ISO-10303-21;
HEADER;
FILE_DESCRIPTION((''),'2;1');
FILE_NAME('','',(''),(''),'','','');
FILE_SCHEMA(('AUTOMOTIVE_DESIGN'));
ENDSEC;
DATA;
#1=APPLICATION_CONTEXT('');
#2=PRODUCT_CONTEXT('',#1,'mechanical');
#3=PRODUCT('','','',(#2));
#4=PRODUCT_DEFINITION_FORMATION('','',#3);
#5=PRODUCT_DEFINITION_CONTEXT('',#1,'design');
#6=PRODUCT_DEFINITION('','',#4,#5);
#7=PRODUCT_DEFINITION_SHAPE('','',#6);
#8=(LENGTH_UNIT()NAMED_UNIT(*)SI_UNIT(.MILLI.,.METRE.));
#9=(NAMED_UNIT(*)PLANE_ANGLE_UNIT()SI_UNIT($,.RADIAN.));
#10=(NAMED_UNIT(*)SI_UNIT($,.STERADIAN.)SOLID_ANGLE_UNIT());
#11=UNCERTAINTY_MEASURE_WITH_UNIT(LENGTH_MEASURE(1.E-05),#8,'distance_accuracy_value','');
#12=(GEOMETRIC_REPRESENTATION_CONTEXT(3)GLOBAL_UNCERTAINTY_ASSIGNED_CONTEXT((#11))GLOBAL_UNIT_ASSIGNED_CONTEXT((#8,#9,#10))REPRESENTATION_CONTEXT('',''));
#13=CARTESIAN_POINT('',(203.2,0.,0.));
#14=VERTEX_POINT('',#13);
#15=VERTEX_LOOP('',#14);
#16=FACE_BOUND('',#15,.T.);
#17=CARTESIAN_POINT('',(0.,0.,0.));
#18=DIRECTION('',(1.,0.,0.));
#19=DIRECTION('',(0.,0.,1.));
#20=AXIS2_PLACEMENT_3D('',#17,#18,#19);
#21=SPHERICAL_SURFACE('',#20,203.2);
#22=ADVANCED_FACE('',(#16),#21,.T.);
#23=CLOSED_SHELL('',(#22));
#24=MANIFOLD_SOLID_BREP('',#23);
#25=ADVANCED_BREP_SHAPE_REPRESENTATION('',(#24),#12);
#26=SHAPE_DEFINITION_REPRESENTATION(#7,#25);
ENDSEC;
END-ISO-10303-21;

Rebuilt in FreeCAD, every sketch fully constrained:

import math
import FreeCAD as App
import Part
import Sketcher
from FreeCAD import Vector
Q = App.Units.Quantity

doc = App.newDocument("Part")
params = doc.addObject("Spreadsheet::Sheet", "Params")
for row, (alias, value) in enumerate([
    ("sketch1_radius", "8 in"),
    ("revolution_angle", "360 deg"),
], start=1):
    params.set(f"A{row}", alias)
    params.set(f"B{row}", "=" + value)
    params.setAlias(f"B{row}", alias)

body = doc.addObject("PartDesign::Body", "Body")

# Sketch on XZ plane
sketch1 = body.newObject("Sketcher::SketchObject", "Sketch")
sketch1.AttachmentSupport = (doc.getObject("XZ_Plane"), [""])
sketch1.MapMode = "FlatFace"
sketch1.addGeometry([
    Part.LineSegment(Vector(203, 0, 0), Vector(-203, 0, 0)),
    Part.ArcOfCircle(Part.Circle(Vector(0, 0, 0), Vector(0, 0, 1), 203), math.radians(0), math.radians(180)),
], False)
sketch1.addConstraint([
    Sketcher.Constraint("Coincident", 0, 1, 1, 1),
    Sketcher.Constraint("Coincident", 1, 2, 0, 2),
    Sketcher.Constraint("Horizontal", 0),
    Sketcher.Constraint("Coincident", 1, 3, -1, 1),
    Sketcher.Constraint("PointOnObject", 0, 1, -1),
    Sketcher.Constraint("Radius", 1, Q("8 in")),
])
sketch1.setExpression("Constraints[5]", "Params.sketch1_radius")
revolution = body.newObject("PartDesign::Revolution", "Revolution")
revolution.Profile = sketch1
revolution.ReferenceAxis = (sketch1, ["H_Axis"])
revolution.setExpression("Angle", "Params.revolution_angle")

doc.recompute()
